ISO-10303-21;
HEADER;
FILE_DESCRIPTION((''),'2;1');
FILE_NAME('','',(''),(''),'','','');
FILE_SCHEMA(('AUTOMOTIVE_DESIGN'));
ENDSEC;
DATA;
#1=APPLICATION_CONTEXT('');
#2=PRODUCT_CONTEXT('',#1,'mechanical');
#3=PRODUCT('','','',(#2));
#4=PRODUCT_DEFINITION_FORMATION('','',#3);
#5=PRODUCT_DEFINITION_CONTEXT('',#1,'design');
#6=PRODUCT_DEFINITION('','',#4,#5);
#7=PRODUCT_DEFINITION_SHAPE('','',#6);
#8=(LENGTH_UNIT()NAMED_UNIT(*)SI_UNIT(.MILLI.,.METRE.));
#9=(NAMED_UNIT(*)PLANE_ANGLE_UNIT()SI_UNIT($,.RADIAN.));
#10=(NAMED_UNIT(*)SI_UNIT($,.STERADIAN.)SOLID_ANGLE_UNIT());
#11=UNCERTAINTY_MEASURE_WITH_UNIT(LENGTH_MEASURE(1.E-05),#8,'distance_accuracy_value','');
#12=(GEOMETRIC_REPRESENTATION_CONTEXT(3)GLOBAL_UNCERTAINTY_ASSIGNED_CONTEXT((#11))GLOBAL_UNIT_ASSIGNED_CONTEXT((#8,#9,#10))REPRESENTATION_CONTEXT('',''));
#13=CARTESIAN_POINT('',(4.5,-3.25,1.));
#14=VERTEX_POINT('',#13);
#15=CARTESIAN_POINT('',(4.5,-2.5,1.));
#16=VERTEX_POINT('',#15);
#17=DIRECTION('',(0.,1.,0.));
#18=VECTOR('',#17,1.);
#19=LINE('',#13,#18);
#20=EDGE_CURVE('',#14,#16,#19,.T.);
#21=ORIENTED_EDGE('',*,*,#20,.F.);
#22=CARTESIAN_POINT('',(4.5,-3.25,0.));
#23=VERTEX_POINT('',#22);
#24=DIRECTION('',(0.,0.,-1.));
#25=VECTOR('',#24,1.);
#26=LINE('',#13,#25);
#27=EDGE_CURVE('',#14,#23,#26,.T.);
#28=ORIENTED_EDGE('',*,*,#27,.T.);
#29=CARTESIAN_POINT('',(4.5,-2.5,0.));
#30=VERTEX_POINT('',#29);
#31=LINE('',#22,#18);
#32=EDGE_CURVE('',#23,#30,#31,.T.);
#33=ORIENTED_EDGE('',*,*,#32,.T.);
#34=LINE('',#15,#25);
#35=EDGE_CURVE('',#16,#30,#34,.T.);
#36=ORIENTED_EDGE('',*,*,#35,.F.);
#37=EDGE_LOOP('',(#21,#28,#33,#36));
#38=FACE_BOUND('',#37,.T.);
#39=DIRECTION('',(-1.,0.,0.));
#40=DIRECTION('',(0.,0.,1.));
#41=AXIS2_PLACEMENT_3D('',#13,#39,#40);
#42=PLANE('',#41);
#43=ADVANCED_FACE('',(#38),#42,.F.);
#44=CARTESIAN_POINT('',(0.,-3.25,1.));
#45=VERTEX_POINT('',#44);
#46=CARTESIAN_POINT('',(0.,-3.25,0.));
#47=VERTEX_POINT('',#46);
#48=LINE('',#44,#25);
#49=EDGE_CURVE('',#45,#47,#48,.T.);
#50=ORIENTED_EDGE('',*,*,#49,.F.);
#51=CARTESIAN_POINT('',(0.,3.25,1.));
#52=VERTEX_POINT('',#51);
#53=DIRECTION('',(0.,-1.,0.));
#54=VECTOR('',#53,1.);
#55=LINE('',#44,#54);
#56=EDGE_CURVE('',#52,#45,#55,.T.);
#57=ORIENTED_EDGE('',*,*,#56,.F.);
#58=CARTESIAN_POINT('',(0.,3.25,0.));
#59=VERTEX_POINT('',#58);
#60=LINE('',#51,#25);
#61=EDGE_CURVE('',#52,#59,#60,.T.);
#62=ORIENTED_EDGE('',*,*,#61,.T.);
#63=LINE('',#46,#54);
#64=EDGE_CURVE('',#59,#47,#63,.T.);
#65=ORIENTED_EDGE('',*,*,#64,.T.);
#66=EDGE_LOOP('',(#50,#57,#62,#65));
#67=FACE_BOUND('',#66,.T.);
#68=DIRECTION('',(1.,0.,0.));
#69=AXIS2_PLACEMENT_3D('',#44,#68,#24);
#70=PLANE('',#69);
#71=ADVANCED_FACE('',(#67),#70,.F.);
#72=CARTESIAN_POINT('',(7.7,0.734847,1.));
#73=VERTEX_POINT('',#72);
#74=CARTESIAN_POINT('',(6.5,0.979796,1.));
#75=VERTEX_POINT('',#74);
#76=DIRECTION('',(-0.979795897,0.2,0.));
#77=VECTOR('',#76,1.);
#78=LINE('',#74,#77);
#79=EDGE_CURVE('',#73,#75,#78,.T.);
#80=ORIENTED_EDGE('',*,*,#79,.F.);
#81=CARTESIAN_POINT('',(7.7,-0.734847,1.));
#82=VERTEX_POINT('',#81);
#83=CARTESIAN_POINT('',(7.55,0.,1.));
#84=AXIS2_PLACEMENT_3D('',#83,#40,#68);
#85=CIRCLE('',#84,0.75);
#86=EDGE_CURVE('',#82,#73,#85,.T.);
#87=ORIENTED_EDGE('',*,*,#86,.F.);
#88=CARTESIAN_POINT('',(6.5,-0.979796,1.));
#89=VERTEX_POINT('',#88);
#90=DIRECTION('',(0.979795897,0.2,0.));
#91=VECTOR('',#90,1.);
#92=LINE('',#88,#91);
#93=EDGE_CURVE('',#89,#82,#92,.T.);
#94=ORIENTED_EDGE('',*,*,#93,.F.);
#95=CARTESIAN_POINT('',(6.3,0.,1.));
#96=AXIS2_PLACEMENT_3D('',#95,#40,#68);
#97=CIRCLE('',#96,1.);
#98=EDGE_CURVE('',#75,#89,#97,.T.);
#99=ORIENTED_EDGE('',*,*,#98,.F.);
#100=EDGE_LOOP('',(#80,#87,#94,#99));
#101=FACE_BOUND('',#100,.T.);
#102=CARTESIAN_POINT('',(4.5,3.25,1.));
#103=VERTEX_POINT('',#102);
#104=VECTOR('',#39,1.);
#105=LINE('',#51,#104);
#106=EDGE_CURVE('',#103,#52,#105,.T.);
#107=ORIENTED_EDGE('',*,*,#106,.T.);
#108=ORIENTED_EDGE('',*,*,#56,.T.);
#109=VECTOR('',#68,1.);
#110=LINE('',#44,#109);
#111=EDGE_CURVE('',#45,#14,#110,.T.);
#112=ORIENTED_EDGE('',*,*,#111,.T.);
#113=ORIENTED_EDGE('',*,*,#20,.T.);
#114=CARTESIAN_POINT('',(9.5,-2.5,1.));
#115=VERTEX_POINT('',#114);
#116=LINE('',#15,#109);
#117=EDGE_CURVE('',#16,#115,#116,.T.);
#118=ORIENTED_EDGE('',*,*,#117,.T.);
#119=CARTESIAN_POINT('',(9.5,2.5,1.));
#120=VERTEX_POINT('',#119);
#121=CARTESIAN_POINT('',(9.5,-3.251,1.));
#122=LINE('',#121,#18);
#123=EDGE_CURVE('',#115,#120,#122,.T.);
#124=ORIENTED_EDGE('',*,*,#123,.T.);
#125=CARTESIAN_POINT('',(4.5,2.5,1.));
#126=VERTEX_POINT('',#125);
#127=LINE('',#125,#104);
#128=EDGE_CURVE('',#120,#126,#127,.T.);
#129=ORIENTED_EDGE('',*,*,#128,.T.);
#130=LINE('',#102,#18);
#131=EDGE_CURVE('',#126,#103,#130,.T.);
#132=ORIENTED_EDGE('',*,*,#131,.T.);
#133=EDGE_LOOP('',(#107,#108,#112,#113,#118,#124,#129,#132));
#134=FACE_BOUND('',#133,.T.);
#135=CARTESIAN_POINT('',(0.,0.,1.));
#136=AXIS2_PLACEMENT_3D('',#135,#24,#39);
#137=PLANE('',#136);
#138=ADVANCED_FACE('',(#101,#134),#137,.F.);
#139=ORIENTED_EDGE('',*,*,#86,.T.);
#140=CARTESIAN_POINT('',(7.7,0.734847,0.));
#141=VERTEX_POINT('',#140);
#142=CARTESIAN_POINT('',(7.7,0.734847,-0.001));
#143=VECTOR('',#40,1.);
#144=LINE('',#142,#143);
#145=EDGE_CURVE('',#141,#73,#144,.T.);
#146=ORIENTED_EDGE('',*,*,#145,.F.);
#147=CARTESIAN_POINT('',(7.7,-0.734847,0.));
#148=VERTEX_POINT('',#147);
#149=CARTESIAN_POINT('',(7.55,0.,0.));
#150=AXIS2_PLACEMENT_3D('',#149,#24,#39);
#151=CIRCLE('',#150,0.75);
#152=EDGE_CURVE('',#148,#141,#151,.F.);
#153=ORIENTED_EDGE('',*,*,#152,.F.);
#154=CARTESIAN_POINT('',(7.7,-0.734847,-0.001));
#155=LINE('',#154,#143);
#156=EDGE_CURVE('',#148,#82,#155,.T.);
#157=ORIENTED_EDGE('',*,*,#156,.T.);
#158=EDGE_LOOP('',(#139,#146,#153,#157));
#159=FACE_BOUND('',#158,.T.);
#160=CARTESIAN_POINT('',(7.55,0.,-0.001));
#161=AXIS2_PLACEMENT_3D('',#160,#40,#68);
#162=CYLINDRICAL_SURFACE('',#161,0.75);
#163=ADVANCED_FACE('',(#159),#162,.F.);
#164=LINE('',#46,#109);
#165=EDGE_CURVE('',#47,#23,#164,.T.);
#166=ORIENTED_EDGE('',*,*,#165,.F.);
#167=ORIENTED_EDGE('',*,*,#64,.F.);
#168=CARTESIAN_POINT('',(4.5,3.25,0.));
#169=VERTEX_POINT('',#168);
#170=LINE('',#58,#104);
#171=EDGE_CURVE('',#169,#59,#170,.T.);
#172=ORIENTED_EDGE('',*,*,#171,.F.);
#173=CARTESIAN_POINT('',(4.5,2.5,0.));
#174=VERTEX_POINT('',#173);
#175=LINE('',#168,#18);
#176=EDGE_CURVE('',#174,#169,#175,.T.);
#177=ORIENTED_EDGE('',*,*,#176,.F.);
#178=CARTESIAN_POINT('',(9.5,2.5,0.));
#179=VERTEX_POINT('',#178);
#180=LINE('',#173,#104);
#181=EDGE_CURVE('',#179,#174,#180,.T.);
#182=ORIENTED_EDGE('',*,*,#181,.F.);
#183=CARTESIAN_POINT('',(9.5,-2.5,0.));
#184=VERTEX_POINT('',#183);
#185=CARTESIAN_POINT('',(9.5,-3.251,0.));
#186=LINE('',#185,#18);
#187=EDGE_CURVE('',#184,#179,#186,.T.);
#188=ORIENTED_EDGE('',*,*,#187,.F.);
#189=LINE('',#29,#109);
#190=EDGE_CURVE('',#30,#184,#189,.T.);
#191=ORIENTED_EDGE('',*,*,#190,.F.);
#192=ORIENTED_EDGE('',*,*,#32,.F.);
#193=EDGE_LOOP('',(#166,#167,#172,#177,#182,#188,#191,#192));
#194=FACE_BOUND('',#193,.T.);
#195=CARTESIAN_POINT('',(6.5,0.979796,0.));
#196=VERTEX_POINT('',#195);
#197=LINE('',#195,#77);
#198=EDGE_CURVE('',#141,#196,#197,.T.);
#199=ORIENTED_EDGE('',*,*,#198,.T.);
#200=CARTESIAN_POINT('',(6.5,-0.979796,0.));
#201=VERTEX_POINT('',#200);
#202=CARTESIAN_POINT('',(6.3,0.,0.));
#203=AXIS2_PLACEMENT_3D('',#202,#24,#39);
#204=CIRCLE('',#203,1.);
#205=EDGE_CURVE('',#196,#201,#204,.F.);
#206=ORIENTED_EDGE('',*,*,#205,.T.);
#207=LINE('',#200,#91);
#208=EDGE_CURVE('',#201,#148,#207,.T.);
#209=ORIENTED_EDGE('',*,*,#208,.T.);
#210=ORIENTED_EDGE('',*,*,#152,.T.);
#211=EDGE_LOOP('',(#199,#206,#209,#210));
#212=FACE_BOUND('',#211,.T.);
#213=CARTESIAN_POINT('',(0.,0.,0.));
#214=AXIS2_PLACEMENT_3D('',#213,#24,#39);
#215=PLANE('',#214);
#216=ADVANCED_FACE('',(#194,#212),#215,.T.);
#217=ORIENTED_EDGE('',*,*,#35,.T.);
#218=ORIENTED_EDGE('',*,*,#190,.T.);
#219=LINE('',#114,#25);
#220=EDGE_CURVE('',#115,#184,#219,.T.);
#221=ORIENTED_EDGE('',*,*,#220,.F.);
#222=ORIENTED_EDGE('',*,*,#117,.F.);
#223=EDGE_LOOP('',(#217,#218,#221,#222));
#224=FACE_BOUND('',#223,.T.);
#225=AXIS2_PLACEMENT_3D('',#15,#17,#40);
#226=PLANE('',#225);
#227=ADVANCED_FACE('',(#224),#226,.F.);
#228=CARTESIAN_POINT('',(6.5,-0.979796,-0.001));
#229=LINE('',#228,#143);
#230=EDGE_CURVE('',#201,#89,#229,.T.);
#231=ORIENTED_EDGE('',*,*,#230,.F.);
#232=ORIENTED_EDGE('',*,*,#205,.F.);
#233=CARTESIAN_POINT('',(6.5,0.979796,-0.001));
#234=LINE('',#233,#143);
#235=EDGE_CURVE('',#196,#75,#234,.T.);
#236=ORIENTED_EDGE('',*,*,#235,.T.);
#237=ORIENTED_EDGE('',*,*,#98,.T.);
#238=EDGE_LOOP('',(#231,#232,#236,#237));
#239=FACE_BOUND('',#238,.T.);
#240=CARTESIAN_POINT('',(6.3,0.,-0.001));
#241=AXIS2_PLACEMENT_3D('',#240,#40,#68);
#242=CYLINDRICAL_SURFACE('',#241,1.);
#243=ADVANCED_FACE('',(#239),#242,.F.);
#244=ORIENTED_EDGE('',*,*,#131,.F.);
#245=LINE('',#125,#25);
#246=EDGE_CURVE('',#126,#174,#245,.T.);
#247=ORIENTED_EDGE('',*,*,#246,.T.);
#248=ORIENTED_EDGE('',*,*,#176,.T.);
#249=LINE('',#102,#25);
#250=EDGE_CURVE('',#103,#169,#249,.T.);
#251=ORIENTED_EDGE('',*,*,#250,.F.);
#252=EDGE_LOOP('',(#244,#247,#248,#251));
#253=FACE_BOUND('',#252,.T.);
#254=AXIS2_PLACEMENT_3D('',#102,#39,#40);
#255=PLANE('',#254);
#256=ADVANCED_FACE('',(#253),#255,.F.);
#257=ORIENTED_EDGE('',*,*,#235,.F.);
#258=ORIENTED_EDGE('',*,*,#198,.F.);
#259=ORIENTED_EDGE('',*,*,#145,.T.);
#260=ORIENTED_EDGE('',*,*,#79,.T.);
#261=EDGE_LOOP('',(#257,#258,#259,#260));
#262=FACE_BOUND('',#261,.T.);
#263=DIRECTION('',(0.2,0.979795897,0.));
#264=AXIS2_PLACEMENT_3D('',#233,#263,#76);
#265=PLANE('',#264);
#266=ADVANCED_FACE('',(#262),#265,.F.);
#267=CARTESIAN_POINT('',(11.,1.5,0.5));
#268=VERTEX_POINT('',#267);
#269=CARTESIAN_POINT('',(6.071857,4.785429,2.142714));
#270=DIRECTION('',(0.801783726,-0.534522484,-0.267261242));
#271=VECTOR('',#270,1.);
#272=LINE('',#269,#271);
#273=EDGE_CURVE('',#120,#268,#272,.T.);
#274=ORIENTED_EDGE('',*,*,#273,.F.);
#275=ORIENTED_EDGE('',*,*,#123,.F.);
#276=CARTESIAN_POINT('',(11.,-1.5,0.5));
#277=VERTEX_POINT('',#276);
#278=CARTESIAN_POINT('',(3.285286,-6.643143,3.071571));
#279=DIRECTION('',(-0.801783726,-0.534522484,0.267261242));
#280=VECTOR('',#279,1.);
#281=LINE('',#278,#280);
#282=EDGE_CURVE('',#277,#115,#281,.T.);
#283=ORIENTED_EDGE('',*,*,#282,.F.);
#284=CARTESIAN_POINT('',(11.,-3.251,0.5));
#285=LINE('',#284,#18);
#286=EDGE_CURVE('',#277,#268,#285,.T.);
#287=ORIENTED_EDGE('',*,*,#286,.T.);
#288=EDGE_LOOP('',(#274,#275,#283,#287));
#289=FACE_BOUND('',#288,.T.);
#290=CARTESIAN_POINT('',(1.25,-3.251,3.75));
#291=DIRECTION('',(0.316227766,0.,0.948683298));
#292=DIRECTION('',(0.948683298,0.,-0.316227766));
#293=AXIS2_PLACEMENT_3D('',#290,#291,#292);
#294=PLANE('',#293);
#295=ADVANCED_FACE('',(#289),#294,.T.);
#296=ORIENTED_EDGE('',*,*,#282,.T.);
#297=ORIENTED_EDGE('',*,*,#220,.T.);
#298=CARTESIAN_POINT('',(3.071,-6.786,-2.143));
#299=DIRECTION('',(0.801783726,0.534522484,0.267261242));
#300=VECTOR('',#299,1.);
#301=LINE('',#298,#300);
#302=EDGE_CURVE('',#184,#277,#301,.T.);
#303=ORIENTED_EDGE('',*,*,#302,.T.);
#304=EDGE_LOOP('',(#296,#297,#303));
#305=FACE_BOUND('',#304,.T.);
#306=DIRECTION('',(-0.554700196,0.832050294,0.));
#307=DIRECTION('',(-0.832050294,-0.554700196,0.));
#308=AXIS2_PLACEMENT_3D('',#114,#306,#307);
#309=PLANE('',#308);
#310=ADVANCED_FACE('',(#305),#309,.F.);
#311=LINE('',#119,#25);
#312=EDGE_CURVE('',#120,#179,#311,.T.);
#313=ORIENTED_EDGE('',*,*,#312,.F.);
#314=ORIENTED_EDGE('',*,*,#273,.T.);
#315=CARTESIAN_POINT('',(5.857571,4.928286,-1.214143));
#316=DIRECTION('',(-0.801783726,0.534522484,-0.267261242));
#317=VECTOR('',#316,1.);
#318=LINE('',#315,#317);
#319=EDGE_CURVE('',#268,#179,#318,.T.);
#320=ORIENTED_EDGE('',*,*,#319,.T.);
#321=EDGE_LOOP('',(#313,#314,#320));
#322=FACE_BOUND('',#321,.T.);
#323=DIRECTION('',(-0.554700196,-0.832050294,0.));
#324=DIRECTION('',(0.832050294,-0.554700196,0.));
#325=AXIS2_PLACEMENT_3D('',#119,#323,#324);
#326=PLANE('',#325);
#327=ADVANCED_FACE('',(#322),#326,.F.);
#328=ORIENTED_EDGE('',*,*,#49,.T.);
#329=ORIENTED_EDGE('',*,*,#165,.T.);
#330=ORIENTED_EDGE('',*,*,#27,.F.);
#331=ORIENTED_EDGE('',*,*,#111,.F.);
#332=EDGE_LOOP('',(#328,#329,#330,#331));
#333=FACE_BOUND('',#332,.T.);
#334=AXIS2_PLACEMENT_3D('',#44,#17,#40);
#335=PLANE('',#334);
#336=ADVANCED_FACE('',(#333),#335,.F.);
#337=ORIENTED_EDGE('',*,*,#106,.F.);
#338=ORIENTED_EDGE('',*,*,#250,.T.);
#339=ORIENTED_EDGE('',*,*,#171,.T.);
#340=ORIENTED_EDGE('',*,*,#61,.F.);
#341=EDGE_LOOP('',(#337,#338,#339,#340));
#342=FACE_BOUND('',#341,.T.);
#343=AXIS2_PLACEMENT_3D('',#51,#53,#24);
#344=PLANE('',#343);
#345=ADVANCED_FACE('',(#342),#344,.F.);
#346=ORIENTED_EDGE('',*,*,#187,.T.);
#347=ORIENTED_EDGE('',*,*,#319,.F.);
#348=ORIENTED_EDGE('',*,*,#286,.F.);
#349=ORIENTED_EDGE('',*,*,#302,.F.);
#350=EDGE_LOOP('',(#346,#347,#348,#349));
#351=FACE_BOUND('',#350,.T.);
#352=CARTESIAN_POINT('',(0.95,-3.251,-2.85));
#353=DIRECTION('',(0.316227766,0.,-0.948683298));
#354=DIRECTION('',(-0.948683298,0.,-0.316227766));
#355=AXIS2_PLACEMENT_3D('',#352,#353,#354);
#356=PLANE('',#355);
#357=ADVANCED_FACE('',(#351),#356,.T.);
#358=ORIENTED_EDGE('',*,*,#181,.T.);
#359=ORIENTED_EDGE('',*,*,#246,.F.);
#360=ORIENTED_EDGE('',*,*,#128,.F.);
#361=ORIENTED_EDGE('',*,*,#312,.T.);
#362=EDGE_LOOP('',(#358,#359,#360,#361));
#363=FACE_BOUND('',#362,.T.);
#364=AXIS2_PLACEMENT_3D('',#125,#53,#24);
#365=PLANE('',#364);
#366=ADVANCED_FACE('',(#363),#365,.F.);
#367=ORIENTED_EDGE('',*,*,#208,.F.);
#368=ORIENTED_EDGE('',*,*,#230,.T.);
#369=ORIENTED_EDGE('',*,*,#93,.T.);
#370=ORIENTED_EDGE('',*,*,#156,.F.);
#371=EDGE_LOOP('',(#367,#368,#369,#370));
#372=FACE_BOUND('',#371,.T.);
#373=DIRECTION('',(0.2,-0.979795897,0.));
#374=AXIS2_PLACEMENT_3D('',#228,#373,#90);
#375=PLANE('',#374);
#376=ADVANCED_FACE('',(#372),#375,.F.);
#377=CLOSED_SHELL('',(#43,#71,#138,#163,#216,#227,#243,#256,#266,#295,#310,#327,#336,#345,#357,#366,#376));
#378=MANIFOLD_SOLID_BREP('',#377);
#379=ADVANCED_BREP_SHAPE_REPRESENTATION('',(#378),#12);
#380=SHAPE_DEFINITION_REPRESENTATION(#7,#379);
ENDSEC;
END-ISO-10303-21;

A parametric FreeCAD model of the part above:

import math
import FreeCAD as App
import Part
import Sketcher
from FreeCAD import Vector
Q = App.Units.Quantity

doc = App.newDocument("Part")
body = doc.addObject("PartDesign::Body", "Body")

sketch1 = body.newObject("Sketcher::SketchObject", "Sketch")
sketch1.AttachmentSupport = (doc.getObject("XY_Plane"), [""])
sketch1.MapMode = "FlatFace"
sketch1.addGeometry(Part.LineSegment(Vector(0, 3.25, 0), Vector(0, -3.25, 0)), False)
sketch1.addGeometry(Part.LineSegment(Vector(0, -3.25, 0), Vector(4.5, -3.25, 0)), False)
sketch1.addGeometry(Part.LineSegment(Vector(4.5, -3.25, 0), Vector(4.5, -2.5, 0)), False)
sketch1.addGeometry(Part.LineSegment(Vector(4.5, -2.5, 0), Vector(9.5, -2.5, 0)), False)
sketch1.addGeometry(Part.LineSegment(Vector(9.5, -2.5, 0), Vector(11, -1.5, 0)), False)
sketch1.addGeometry(Part.LineSegment(Vector(11, -1.5, 0), Vector(11, 1.5, 0)), False)
sketch1.addGeometry(Part.LineSegment(Vector(11, 1.5, 0), Vector(9.5, 2.5, 0)), False)
sketch1.addGeometry(Part.LineSegment(Vector(9.5, 2.5, 0), Vector(4.5, 2.5, 0)), False)
sketch1.addGeometry(Part.LineSegment(Vector(4.5, 2.5, 0), Vector(4.5, 3.25, 0)), False)
sketch1.addGeometry(Part.LineSegment(Vector(4.5, 3.25, 0), Vector(0, 3.25, 0)), False)
sketch1.addConstraint(Sketcher.Constraint("Coincident", 0, 2, 1, 1))
sketch1.addConstraint(Sketcher.Constraint("Coincident", 1, 2, 2, 1))
sketch1.addConstraint(Sketcher.Constraint("Coincident", 2, 2, 3, 1))
sketch1.addConstraint(Sketcher.Constraint("Coincident", 3, 2, 4, 1))
sketch1.addConstraint(Sketcher.Constraint("Coincident", 4, 2, 5, 1))
sketch1.addConstraint(Sketcher.Constraint("Coincident", 5, 2, 6, 1))
sketch1.addConstraint(Sketcher.Constraint("Coincident", 6, 2, 7, 1))
sketch1.addConstraint(Sketcher.Constraint("Coincident", 7, 2, 8, 1))
sketch1.addConstraint(Sketcher.Constraint("Coincident", 8, 2, 9, 1))
sketch1.addConstraint(Sketcher.Constraint("Coincident", 9, 2, 0, 1))
sketch1.addConstraint(Sketcher.Constraint("Vertical", 0))
sketch1.addConstraint(Sketcher.Constraint("Horizontal", 1))
sketch1.addConstraint(Sketcher.Constraint("Vertical", 2))
sketch1.addConstraint(Sketcher.Constraint("Horizontal", 3))
sketch1.addConstraint(Sketcher.Constraint("Vertical", 5))
sketch1.addConstraint(Sketcher.Constraint("Horizontal", 7))
sketch1.addConstraint(Sketcher.Constraint("Vertical", 8))
sketch1.addConstraint(Sketcher.Constraint("Horizontal", 9))
sketch1.addConstraint(Sketcher.Constraint("Symmetric", 0, 2, 9, 2, -1, 1))
sketch1.addConstraint(Sketcher.Constraint("Symmetric", 3, 2, 6, 2, -1))
sketch1.addConstraint(Sketcher.Constraint("Vertical", 2, 2, 7, 2))
sketch1.addConstraint(Sketcher.Constraint("Equal", 4, 6))
sketch1.addConstraint(Sketcher.Constraint("DistanceX", 3, 1, 3, 2, Q("5 mm")))
sketch1.addConstraint(Sketcher.Constraint("DistanceY", 5, 1, 5, 2, Q("3 mm")))
sketch1.addConstraint(Sketcher.Constraint("DistanceX", 1, 1, 1, 2, Q("4.5 mm")))
sketch1.addConstraint(Sketcher.Constraint("DistanceY", 0, 2, 0, 1, Q("6.5 mm")))
sketch1.addConstraint(Sketcher.Constraint("DistanceX", -1, 1, 4, 2, Q("11 mm")))
sketch1.addConstraint(Sketcher.Constraint("DistanceY", 3, 2, 4, 2, Q("1 mm")))
pad1 = body.newObject("PartDesign::Pad", "Pad")
pad1.Profile = sketch1
pad1.Length = 1

sketch2 = body.newObject("Sketcher::SketchObject", "Sketch001")
sketch2.AttachmentSupport = (doc.getObject("XY_Plane"), [""])
sketch2.MapMode = "FlatFace"
sketch2.AttachmentOffset = App.Placement(Vector(0, 0, 1), App.Rotation())
sketch2.addGeometry(Part.LineSegment(Vector(7.7, 0.734847, 0), Vector(6.5, 0.979796, 0)), False)
sketch2.addGeometry(Part.ArcOfCircle(Part.Circle(Vector(6.3, 0, 0), Vector(0, 0, 1), 1), math.radians(78.463041), math.radians(281.536959)), False)
sketch2.addGeometry(Part.LineSegment(Vector(6.5, -0.979796, 0), Vector(7.7, -0.734847, 0)), False)
sketch2.addGeometry(Part.ArcOfCircle(Part.Circle(Vector(7.55, 0, 0), Vector(0, 0, 1), 0.75), math.radians(-78.463041), math.radians(78.463041)), False)
sketch2.addConstraint(Sketcher.Constraint("Tangent", 0, 2, 1, 1))
sketch2.addConstraint(Sketcher.Constraint("Tangent", 1, 2, 2, 1))
sketch2.addConstraint(Sketcher.Constraint("Tangent", 2, 2, 3, 1))
sketch2.addConstraint(Sketcher.Constraint("Tangent", 3, 2, 0, 1))
sketch2.addConstraint(Sketcher.Constraint("Symmetric", 0, 2, 1, 2, -1))
sketch2.addConstraint(Sketcher.Constraint("Radius", 1, Q("1 mm")))
sketch2.addConstraint(Sketcher.Constraint("Radius", 3, Q("0.75 mm")))
sketch2.addConstraint(Sketcher.Constraint("DistanceX", -1, 1, 1, 3, Q("6.3 mm")))
sketch2.addConstraint(Sketcher.Constraint("DistanceX", -1, 1, 0, 2, Q("6.5 mm")))
pocket1 = body.newObject("PartDesign::Pocket", "Pocket")
pocket1.Profile = sketch2
pocket1.Type = "UpToFirst"

sketch3 = body.newObject("Sketcher::SketchObject", "Sketch002")
sketch3.AttachmentSupport = (doc.getObject("XZ_Plane"), [""])
sketch3.MapMode = "FlatFace"
sketch3.AttachmentOffset = App.Placement(Vector(0, 0, -2.5), App.Rotation())
sketch3.addGeometry(Part.LineSegment(Vector(11, 1, 0), Vector(11, 0.5, 0)), False)
sketch3.addGeometry(Part.LineSegment(Vector(11, 0.5, 0), Vector(9.5, 1, 0)), False)
sketch3.addGeometry(Part.LineSegment(Vector(9.5, 1, 0), Vector(11, 1, 0)), False)
sketch3.addConstraint(Sketcher.Constraint("Coincident", 0, 2, 1, 1))
sketch3.addConstraint(Sketcher.Constraint("Coincident", 1, 2, 2, 1))
sketch3.addConstraint(Sketcher.Constraint("Coincident", 2, 2, 0, 1))
sketch3.addConstraint(Sketcher.Constraint("Vertical", 0))
sketch3.addConstraint(Sketcher.Constraint("Horizontal", 2))
sketch3.addConstraint(Sketcher.Constraint("DistanceX", 2, 1, 2, 2, Q("1.5 mm")))
sketch3.addConstraint(Sketcher.Constraint("DistanceY", 0, 2, 0, 1, Q("0.5 mm")))
sketch3.addConstraint(Sketcher.Constraint("DistanceX", -1, 1, 0, 2, Q("11 mm")))
sketch3.addConstraint(Sketcher.Constraint("DistanceY", -1, 1, 1, 2, Q("1 mm")))
pocket2 = body.newObject("PartDesign::Pocket", "Pocket001")
pocket2.Profile = sketch3
pocket2.Length = 5
pocket2.Reversed = True

sketch4 = body.newObject("Sketcher::SketchObject", "Sketch003")
sketch4.AttachmentSupport = (doc.getObject("XZ_Plane"), [""])
sketch4.MapMode = "FlatFace"
sketch4.AttachmentOffset = App.Placement(Vector(0, 0, -2.5), App.Rotation())
sketch4.addGeometry(Part.LineSegment(Vector(9.5, 0, 0), Vector(11, 0.5, 0)), False)
sketch4.addGeometry(Part.LineSegment(Vector(11, 0.5, 0), Vector(11, 0, 0)), False)
sketch4.addGeometry(Part.LineSegment(Vector(11, 0, 0), Vector(9.5, 0, 0)), False)
sketch4.addConstraint(Sketcher.Constraint("Coincident", 0, 2, 1, 1))
sketch4.addConstraint(Sketcher.Constraint("Coincident", 1, 2, 2, 1))
sketch4.addConstraint(Sketcher.Constraint("Coincident", 2, 2, 0, 1))
sketch4.addConstraint(Sketcher.Constraint("Vertical", 1))
sketch4.addConstraint(Sketcher.Constraint("Horizontal", 2))
sketch4.addConstraint(Sketcher.Constraint("PointOnObject", 1, 2, -1))
sketch4.addConstraint(Sketcher.Constraint("DistanceX", 2, 2, 2, 1, Q("1.5 mm")))
sketch4.addConstraint(Sketcher.Constraint("DistanceY", 1, 2, 1, 1, Q("0.5 mm")))
sketch4.addConstraint(Sketcher.Constraint("DistanceX", -1, 1, 0, 2, Q("11 mm")))
pocket3 = body.newObject("PartDesign::Pocket", "Pocket002")
pocket3.Profile = sketch4
pocket3.Length = 5
pocket3.Reversed = True

doc.recompute()
